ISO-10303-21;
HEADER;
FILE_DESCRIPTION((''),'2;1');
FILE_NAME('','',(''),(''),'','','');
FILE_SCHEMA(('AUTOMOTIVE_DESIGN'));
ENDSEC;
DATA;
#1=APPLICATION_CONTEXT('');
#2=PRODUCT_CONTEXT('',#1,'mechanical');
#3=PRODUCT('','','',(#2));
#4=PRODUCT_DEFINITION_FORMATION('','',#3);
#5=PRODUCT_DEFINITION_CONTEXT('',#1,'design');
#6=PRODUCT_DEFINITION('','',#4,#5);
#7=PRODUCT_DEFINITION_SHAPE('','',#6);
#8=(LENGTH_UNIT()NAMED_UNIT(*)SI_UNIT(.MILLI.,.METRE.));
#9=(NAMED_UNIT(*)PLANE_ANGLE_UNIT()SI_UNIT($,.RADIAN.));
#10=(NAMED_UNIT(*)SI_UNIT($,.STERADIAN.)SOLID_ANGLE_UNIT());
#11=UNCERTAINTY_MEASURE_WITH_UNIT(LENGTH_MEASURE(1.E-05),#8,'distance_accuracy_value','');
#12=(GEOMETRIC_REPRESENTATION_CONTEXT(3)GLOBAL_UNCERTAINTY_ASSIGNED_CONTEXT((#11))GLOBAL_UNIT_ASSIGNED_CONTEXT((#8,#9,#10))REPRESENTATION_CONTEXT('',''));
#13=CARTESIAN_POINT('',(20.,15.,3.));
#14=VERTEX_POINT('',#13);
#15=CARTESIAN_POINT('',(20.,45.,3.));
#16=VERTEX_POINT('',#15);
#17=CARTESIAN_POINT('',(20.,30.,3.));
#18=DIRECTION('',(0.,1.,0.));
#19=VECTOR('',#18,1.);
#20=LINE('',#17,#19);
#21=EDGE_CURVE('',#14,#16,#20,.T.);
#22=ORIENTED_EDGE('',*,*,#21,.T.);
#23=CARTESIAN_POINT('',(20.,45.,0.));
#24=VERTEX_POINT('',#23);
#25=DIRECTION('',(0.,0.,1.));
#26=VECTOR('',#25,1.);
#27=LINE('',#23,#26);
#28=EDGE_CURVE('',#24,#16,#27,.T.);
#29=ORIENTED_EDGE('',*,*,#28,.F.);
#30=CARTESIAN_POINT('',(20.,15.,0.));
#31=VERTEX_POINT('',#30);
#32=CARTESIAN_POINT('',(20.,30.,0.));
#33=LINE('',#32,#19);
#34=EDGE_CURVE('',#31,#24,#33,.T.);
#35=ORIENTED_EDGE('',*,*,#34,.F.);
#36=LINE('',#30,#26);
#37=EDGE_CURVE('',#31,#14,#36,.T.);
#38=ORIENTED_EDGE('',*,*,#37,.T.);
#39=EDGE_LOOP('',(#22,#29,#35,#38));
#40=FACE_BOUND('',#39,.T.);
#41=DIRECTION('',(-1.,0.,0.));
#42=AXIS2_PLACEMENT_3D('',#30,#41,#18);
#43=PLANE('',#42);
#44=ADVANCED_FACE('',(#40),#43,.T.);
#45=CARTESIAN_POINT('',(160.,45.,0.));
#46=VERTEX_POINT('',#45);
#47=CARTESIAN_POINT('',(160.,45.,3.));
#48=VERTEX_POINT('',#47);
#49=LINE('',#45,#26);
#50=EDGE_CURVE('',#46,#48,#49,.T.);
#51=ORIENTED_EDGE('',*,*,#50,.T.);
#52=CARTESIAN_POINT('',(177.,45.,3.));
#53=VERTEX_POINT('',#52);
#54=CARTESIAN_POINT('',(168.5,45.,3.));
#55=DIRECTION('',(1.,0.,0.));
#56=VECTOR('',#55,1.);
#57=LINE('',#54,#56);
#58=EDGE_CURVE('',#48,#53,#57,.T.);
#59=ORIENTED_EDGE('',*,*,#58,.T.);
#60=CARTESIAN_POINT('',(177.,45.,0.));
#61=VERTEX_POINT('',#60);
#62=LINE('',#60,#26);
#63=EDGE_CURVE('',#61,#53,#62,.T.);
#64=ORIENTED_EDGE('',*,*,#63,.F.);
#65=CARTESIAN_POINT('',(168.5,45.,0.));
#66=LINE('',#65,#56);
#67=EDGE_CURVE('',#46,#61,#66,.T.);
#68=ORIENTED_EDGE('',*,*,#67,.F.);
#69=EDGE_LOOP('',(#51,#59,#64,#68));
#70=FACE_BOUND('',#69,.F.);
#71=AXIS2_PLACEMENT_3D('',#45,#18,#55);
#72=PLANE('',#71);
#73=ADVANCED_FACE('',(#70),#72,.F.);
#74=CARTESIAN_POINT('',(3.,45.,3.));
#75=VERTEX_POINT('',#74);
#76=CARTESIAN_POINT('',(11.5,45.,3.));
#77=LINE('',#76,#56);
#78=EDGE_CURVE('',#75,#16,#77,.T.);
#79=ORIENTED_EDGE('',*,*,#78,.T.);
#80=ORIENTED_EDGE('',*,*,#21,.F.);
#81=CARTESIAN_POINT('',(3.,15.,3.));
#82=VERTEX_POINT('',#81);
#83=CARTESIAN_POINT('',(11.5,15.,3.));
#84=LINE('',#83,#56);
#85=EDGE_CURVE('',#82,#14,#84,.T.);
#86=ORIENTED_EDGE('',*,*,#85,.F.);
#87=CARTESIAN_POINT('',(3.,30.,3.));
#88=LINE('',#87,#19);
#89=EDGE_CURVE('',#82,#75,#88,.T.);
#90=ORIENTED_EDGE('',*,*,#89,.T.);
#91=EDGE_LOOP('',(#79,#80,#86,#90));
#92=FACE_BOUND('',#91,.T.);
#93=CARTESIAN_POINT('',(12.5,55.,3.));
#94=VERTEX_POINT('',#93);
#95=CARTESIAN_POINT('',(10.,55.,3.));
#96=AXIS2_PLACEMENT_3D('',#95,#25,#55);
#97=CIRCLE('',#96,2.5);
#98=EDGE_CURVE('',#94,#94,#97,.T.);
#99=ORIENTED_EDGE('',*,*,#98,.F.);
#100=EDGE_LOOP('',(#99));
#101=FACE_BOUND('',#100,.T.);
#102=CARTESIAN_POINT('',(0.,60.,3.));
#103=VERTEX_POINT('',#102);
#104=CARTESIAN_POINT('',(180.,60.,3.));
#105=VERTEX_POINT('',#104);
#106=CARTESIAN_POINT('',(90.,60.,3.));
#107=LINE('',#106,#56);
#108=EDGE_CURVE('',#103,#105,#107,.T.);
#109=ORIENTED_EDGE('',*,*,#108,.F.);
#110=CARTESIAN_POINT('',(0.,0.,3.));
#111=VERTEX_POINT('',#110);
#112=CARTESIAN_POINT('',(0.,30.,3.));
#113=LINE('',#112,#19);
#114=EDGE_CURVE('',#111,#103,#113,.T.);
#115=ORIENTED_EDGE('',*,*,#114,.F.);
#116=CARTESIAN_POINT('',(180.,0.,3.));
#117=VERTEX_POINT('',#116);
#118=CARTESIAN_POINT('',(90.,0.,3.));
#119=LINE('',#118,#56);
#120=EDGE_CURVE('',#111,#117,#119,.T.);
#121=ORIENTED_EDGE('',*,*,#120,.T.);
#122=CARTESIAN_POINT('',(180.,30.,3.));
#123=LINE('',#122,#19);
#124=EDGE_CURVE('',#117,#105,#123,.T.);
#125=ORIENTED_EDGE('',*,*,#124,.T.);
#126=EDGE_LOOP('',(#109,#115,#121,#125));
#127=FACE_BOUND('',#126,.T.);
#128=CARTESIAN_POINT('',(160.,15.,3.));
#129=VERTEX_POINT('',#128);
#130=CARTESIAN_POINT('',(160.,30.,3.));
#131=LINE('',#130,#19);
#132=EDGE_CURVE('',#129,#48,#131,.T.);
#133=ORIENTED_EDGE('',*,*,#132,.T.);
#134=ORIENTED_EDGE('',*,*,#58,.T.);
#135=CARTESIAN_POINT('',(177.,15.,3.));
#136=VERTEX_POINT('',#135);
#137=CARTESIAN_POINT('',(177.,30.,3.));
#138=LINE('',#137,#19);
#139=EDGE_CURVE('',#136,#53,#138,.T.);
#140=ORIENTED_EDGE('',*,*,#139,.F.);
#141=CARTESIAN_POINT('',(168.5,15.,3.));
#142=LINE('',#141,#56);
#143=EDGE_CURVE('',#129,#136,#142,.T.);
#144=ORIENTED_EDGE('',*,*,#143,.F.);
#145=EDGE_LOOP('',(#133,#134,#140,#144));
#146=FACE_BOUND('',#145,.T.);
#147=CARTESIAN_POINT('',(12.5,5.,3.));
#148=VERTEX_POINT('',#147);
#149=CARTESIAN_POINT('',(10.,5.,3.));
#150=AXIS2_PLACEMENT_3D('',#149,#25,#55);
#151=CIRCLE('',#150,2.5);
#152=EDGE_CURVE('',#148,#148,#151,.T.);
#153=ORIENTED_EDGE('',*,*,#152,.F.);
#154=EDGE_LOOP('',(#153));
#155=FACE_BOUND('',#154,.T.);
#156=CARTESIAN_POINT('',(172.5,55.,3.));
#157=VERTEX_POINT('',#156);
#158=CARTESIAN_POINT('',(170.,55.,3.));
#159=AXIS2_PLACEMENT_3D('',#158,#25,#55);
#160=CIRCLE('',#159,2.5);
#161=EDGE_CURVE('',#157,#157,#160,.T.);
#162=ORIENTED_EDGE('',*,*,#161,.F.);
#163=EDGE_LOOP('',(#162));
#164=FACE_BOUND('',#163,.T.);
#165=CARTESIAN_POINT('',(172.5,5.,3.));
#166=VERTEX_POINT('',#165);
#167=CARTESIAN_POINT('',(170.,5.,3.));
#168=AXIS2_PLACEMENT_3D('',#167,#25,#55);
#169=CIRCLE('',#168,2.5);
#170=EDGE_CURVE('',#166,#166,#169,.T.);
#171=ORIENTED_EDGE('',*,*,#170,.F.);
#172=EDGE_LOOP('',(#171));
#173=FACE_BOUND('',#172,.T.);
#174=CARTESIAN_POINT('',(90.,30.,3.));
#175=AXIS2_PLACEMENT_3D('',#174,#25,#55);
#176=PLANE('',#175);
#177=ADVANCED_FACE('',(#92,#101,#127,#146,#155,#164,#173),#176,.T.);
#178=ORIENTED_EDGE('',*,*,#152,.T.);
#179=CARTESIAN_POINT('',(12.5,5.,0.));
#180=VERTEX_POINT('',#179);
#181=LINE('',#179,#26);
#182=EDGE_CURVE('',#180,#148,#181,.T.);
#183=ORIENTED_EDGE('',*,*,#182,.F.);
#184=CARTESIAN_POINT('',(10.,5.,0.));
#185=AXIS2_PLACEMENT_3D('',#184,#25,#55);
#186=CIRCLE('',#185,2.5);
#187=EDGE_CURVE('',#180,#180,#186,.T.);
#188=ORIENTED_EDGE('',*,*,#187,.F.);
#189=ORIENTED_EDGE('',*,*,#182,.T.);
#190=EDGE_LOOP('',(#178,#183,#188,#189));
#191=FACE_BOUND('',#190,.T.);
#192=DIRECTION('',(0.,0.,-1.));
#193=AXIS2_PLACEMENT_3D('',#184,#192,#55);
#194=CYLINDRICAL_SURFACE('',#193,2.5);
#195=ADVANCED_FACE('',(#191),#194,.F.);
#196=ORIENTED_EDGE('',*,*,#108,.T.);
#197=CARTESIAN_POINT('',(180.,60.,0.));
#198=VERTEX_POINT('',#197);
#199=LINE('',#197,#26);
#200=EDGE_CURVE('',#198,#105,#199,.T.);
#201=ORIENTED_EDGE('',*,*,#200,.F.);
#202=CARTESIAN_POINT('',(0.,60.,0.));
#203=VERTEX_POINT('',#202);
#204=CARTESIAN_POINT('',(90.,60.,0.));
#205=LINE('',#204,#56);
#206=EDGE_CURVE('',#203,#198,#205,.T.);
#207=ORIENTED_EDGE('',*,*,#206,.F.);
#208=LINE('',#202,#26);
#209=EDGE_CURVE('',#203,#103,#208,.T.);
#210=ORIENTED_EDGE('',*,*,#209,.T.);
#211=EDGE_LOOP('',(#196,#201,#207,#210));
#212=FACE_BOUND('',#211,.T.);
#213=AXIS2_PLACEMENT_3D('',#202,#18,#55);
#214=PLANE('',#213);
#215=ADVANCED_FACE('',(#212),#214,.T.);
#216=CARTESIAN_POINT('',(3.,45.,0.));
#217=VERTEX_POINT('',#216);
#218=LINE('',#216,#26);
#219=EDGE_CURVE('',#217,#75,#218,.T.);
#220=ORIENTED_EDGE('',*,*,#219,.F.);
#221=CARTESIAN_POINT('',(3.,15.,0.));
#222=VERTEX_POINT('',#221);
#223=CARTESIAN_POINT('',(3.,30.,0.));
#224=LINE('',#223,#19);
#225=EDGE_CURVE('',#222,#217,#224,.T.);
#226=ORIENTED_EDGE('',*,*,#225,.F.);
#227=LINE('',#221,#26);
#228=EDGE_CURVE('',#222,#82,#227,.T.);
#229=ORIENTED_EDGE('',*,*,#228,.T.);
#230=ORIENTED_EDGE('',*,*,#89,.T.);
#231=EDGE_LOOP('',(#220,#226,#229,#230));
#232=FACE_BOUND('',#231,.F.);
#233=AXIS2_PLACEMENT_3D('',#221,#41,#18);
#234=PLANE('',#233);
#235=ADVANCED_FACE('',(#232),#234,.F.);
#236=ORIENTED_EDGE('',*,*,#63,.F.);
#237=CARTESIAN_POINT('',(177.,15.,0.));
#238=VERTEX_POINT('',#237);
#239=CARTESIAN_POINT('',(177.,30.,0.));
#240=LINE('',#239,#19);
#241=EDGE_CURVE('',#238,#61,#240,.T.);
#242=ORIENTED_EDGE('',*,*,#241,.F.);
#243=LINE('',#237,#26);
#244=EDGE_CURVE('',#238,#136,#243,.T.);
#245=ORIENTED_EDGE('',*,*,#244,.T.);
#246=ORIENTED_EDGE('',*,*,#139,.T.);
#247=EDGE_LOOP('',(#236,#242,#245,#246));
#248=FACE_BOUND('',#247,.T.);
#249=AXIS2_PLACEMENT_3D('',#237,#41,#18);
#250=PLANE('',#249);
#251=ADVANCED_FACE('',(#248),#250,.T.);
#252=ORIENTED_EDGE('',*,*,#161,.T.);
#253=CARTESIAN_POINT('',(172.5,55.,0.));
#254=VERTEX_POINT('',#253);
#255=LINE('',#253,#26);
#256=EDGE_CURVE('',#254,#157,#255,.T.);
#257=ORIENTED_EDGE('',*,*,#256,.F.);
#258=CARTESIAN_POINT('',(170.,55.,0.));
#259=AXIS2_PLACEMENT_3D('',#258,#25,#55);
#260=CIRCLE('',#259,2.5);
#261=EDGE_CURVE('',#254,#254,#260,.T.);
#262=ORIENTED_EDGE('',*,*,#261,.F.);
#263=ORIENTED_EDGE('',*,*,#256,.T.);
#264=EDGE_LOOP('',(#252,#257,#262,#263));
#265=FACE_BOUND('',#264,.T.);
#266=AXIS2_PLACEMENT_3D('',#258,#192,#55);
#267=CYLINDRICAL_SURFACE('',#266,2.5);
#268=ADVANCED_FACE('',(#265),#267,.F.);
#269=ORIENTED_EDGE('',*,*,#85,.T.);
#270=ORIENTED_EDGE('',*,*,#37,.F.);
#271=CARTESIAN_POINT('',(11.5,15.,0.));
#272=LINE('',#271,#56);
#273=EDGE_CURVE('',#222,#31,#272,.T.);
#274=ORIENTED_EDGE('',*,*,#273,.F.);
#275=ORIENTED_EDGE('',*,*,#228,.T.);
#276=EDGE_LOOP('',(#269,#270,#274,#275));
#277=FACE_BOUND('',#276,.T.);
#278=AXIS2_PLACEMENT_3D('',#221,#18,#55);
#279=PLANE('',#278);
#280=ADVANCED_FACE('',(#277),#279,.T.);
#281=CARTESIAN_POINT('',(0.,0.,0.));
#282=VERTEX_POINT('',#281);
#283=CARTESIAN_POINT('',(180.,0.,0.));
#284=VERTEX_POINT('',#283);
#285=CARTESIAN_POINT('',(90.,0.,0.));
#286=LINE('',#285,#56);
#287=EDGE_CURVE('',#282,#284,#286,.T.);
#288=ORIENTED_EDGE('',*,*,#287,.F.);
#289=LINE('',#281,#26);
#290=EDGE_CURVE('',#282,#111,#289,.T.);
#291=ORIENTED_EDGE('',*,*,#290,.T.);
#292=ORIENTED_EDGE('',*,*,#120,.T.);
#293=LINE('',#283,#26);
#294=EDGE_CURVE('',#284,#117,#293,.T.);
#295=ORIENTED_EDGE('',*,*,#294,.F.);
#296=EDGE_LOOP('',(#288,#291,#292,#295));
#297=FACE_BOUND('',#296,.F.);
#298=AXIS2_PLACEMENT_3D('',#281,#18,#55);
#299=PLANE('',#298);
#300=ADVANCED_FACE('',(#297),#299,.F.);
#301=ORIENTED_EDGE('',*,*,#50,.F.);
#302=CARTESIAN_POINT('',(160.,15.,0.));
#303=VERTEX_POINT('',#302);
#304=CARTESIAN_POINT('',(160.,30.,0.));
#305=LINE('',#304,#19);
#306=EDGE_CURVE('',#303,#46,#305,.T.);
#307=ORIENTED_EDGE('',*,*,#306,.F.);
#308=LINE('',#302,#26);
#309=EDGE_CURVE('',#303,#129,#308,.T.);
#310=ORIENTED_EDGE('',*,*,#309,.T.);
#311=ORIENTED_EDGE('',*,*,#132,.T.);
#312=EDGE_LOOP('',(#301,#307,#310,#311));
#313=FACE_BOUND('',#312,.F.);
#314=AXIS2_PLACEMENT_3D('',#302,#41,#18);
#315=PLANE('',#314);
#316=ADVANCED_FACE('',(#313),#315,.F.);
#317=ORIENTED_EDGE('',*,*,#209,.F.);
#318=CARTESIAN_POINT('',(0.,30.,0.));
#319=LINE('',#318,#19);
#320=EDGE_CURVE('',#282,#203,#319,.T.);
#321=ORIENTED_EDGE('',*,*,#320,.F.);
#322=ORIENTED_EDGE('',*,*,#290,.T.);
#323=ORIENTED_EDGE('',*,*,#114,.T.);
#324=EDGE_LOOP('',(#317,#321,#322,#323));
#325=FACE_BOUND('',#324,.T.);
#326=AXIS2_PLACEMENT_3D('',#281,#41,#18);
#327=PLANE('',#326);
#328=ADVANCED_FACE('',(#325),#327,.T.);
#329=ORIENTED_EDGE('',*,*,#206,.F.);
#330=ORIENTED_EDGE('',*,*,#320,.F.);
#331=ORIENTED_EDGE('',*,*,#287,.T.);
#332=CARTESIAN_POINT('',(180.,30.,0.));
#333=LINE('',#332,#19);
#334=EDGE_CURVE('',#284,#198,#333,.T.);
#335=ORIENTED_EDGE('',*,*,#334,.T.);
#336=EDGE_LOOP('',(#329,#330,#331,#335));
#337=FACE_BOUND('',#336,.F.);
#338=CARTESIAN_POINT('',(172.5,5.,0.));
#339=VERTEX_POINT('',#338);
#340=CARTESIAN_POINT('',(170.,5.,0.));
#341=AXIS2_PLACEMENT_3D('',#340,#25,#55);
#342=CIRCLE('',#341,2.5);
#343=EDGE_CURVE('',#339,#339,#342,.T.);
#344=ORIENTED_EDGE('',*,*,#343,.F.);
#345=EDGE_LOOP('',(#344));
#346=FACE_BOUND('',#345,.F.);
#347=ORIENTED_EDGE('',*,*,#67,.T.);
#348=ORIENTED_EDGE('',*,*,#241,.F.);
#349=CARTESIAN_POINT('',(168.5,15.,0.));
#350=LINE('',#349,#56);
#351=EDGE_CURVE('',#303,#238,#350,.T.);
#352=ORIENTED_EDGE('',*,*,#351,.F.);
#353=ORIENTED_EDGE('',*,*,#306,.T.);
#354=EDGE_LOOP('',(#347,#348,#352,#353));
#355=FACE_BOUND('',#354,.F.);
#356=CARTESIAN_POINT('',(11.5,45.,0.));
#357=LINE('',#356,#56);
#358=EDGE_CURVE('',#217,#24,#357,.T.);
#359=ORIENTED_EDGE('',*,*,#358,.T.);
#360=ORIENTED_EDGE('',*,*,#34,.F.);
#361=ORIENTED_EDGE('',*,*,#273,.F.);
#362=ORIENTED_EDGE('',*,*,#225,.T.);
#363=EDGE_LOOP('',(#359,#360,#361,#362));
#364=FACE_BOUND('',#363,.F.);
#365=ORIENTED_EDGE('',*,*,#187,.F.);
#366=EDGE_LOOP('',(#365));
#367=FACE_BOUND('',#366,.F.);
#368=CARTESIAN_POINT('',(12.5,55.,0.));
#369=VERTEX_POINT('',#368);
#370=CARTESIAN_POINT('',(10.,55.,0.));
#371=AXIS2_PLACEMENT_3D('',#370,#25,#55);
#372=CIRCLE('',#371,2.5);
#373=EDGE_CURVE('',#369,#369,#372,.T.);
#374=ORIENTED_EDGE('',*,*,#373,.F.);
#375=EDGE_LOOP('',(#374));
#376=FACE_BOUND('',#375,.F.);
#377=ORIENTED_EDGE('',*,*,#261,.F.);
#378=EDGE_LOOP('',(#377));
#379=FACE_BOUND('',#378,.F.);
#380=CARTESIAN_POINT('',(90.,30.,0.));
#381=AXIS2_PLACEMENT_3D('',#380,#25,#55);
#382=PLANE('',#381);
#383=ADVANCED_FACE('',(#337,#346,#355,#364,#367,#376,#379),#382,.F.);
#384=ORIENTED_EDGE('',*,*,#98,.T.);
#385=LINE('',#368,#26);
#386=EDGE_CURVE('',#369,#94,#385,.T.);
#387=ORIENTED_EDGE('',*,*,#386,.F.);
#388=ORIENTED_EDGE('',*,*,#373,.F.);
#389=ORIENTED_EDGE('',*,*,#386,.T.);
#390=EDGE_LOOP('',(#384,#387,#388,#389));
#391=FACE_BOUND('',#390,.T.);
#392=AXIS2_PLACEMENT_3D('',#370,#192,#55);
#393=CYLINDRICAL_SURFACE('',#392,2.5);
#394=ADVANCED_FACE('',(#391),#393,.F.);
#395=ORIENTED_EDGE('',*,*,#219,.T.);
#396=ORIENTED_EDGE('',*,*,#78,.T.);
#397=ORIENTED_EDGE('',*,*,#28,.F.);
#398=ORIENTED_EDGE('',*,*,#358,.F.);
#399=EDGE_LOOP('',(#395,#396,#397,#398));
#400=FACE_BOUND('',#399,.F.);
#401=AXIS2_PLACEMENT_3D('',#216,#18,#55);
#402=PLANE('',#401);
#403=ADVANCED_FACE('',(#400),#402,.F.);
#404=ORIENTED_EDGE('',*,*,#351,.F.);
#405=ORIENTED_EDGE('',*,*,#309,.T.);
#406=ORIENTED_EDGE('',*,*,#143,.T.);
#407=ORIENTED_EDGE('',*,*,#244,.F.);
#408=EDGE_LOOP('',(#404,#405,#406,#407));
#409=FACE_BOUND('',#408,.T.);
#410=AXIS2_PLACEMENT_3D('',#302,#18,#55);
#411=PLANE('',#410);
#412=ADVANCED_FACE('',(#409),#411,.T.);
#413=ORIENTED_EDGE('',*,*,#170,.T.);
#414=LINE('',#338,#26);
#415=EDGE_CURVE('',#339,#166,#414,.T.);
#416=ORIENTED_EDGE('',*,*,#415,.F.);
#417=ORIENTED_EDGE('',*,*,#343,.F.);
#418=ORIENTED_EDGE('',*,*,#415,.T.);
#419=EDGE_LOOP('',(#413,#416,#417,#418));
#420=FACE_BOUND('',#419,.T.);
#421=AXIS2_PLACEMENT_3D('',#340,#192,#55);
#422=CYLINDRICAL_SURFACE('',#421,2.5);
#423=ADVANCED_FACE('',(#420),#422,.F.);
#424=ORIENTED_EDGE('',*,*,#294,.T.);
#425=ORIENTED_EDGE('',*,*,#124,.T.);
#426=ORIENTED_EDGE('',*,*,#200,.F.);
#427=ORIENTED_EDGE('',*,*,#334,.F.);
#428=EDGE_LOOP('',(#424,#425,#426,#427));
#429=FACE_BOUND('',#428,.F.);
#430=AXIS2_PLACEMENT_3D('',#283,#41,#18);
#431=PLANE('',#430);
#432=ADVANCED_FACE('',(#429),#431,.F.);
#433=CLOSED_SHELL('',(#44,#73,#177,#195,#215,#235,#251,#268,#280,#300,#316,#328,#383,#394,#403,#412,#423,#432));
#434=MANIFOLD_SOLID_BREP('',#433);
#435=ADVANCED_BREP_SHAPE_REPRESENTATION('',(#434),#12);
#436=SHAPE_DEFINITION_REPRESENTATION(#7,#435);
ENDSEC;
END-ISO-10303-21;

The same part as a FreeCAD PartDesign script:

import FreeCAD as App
import Part
import Sketcher
from FreeCAD import Vector
Q = App.Units.Quantity


def add_polygon(sketch, points):
    """Adds a closed chain of lines whose ends are joined by coincident constraints."""
    first, n = sketch.GeometryCount, len(points)
    for a, b in zip(points, points[1:] + points[:1]):
        sketch.addGeometry(Part.LineSegment(App.Vector(*a, 0), App.Vector(*b, 0)), False)
    for i in range(n):
        sketch.addConstraint(Sketcher.Constraint("Coincident", first + i, 2, first + (i + 1) % n, 1))

doc = App.newDocument("Part")
body = doc.addObject("PartDesign::Body", "Body")

# Sketch on XY plane
sketch1 = doc.addObject("Sketcher::SketchObject", "Sketch")
body.addObject(sketch1)
sketch1.AttachmentSupport = (doc.XY_Plane, [""])
sketch1.MapMode = "FlatFace"
add_polygon(sketch1, [(0, 60), (0, 0), (180, 0), (180, 60)])  # lines 0-3
sketch1.addGeometry(Part.Circle(Vector(10, 5, 0), Vector(0, 0, 1), 2.5), False)  # 4
sketch1.addGeometry(Part.Circle(Vector(170, 5, 0), Vector(0, 0, 1), 2.5), False)  # 5
add_polygon(sketch1, [(20, 15), (3, 15), (3, 45), (20, 45)])  # lines 6-9
sketch1.addGeometry(Part.Circle(Vector(10, 55, 0), Vector(0, 0, 1), 2.5), False)  # 10
add_polygon(sketch1, [(177, 15), (160, 15), (160, 45), (177, 45)])  # lines 11-14
sketch1.addGeometry(Part.Circle(Vector(170, 55, 0), Vector(0, 0, 1), 2.5), False)  # 15
sketch1.addConstraint([
    Sketcher.Constraint("Vertical", 0),
    Sketcher.Constraint("Horizontal", 1),
    Sketcher.Constraint("Vertical", 2),
    Sketcher.Constraint("Horizontal", 3),
    Sketcher.Constraint("Horizontal", 6),
    Sketcher.Constraint("Vertical", 7),
    Sketcher.Constraint("Horizontal", 8),
    Sketcher.Constraint("Vertical", 9),
    Sketcher.Constraint("Horizontal", 11),
    Sketcher.Constraint("Vertical", 12),
    Sketcher.Constraint("Horizontal", 13),
    Sketcher.Constraint("Vertical", 14),
    Sketcher.Constraint("Coincident", 0, 2, -1, 1),
    Sketcher.Constraint("Equal", 4, 5),
    Sketcher.Constraint("Equal", 5, 10),
    Sketcher.Constraint("Equal", 10, 15),
    Sketcher.Constraint("Horizontal", 4, 3, 5, 3),
    Sketcher.Constraint("Horizontal", 10, 3, 15, 3),
    Sketcher.Constraint("Horizontal", 9, 2, 11, 2),
    Sketcher.Constraint("Horizontal", 8, 2, 12, 2),
    Sketcher.Constraint("Vertical", 4, 3, 10, 3),
    Sketcher.Constraint("Vertical", 5, 3, 15, 3),
    Sketcher.Constraint("Equal", 8, 11),
    Sketcher.Constraint("Diameter", 4, Q("5 mm")),
    Sketcher.Constraint("DistanceX", 1, 1, 1, 2, Q("180 mm")),
    Sketcher.Constraint("DistanceX", 6, 2, 6, 1, Q("17 mm")),
    Sketcher.Constraint("DistanceY", 0, 2, 0, 1, Q("60 mm")),
    Sketcher.Constraint("DistanceY", 7, 1, 7, 2, Q("30 mm")),
    Sketcher.Constraint("DistanceX", -1, 1, 4, 3, Q("10 mm")),
    Sketcher.Constraint("DistanceY", -1, 1, 4, 3, Q("5 mm")),
    Sketcher.Constraint("DistanceX", -1, 1, 5, 3, Q("170 mm")),
    Sketcher.Constraint("DistanceY", -1, 1, 10, 3, Q("55 mm")),
    Sketcher.Constraint("DistanceX", -1, 1, 6, 2, Q("3 mm")),
    Sketcher.Constraint("DistanceY", -1, 1, 6, 2, Q("15 mm")),
    Sketcher.Constraint("DistanceX", -1, 1, 11, 2, Q("160 mm")),
])
pad1 = doc.addObject("PartDesign::Pad", "Pad")
body.addObject(pad1)
pad1.Profile = sketch1
pad1.Length = 3

doc.recompute()
